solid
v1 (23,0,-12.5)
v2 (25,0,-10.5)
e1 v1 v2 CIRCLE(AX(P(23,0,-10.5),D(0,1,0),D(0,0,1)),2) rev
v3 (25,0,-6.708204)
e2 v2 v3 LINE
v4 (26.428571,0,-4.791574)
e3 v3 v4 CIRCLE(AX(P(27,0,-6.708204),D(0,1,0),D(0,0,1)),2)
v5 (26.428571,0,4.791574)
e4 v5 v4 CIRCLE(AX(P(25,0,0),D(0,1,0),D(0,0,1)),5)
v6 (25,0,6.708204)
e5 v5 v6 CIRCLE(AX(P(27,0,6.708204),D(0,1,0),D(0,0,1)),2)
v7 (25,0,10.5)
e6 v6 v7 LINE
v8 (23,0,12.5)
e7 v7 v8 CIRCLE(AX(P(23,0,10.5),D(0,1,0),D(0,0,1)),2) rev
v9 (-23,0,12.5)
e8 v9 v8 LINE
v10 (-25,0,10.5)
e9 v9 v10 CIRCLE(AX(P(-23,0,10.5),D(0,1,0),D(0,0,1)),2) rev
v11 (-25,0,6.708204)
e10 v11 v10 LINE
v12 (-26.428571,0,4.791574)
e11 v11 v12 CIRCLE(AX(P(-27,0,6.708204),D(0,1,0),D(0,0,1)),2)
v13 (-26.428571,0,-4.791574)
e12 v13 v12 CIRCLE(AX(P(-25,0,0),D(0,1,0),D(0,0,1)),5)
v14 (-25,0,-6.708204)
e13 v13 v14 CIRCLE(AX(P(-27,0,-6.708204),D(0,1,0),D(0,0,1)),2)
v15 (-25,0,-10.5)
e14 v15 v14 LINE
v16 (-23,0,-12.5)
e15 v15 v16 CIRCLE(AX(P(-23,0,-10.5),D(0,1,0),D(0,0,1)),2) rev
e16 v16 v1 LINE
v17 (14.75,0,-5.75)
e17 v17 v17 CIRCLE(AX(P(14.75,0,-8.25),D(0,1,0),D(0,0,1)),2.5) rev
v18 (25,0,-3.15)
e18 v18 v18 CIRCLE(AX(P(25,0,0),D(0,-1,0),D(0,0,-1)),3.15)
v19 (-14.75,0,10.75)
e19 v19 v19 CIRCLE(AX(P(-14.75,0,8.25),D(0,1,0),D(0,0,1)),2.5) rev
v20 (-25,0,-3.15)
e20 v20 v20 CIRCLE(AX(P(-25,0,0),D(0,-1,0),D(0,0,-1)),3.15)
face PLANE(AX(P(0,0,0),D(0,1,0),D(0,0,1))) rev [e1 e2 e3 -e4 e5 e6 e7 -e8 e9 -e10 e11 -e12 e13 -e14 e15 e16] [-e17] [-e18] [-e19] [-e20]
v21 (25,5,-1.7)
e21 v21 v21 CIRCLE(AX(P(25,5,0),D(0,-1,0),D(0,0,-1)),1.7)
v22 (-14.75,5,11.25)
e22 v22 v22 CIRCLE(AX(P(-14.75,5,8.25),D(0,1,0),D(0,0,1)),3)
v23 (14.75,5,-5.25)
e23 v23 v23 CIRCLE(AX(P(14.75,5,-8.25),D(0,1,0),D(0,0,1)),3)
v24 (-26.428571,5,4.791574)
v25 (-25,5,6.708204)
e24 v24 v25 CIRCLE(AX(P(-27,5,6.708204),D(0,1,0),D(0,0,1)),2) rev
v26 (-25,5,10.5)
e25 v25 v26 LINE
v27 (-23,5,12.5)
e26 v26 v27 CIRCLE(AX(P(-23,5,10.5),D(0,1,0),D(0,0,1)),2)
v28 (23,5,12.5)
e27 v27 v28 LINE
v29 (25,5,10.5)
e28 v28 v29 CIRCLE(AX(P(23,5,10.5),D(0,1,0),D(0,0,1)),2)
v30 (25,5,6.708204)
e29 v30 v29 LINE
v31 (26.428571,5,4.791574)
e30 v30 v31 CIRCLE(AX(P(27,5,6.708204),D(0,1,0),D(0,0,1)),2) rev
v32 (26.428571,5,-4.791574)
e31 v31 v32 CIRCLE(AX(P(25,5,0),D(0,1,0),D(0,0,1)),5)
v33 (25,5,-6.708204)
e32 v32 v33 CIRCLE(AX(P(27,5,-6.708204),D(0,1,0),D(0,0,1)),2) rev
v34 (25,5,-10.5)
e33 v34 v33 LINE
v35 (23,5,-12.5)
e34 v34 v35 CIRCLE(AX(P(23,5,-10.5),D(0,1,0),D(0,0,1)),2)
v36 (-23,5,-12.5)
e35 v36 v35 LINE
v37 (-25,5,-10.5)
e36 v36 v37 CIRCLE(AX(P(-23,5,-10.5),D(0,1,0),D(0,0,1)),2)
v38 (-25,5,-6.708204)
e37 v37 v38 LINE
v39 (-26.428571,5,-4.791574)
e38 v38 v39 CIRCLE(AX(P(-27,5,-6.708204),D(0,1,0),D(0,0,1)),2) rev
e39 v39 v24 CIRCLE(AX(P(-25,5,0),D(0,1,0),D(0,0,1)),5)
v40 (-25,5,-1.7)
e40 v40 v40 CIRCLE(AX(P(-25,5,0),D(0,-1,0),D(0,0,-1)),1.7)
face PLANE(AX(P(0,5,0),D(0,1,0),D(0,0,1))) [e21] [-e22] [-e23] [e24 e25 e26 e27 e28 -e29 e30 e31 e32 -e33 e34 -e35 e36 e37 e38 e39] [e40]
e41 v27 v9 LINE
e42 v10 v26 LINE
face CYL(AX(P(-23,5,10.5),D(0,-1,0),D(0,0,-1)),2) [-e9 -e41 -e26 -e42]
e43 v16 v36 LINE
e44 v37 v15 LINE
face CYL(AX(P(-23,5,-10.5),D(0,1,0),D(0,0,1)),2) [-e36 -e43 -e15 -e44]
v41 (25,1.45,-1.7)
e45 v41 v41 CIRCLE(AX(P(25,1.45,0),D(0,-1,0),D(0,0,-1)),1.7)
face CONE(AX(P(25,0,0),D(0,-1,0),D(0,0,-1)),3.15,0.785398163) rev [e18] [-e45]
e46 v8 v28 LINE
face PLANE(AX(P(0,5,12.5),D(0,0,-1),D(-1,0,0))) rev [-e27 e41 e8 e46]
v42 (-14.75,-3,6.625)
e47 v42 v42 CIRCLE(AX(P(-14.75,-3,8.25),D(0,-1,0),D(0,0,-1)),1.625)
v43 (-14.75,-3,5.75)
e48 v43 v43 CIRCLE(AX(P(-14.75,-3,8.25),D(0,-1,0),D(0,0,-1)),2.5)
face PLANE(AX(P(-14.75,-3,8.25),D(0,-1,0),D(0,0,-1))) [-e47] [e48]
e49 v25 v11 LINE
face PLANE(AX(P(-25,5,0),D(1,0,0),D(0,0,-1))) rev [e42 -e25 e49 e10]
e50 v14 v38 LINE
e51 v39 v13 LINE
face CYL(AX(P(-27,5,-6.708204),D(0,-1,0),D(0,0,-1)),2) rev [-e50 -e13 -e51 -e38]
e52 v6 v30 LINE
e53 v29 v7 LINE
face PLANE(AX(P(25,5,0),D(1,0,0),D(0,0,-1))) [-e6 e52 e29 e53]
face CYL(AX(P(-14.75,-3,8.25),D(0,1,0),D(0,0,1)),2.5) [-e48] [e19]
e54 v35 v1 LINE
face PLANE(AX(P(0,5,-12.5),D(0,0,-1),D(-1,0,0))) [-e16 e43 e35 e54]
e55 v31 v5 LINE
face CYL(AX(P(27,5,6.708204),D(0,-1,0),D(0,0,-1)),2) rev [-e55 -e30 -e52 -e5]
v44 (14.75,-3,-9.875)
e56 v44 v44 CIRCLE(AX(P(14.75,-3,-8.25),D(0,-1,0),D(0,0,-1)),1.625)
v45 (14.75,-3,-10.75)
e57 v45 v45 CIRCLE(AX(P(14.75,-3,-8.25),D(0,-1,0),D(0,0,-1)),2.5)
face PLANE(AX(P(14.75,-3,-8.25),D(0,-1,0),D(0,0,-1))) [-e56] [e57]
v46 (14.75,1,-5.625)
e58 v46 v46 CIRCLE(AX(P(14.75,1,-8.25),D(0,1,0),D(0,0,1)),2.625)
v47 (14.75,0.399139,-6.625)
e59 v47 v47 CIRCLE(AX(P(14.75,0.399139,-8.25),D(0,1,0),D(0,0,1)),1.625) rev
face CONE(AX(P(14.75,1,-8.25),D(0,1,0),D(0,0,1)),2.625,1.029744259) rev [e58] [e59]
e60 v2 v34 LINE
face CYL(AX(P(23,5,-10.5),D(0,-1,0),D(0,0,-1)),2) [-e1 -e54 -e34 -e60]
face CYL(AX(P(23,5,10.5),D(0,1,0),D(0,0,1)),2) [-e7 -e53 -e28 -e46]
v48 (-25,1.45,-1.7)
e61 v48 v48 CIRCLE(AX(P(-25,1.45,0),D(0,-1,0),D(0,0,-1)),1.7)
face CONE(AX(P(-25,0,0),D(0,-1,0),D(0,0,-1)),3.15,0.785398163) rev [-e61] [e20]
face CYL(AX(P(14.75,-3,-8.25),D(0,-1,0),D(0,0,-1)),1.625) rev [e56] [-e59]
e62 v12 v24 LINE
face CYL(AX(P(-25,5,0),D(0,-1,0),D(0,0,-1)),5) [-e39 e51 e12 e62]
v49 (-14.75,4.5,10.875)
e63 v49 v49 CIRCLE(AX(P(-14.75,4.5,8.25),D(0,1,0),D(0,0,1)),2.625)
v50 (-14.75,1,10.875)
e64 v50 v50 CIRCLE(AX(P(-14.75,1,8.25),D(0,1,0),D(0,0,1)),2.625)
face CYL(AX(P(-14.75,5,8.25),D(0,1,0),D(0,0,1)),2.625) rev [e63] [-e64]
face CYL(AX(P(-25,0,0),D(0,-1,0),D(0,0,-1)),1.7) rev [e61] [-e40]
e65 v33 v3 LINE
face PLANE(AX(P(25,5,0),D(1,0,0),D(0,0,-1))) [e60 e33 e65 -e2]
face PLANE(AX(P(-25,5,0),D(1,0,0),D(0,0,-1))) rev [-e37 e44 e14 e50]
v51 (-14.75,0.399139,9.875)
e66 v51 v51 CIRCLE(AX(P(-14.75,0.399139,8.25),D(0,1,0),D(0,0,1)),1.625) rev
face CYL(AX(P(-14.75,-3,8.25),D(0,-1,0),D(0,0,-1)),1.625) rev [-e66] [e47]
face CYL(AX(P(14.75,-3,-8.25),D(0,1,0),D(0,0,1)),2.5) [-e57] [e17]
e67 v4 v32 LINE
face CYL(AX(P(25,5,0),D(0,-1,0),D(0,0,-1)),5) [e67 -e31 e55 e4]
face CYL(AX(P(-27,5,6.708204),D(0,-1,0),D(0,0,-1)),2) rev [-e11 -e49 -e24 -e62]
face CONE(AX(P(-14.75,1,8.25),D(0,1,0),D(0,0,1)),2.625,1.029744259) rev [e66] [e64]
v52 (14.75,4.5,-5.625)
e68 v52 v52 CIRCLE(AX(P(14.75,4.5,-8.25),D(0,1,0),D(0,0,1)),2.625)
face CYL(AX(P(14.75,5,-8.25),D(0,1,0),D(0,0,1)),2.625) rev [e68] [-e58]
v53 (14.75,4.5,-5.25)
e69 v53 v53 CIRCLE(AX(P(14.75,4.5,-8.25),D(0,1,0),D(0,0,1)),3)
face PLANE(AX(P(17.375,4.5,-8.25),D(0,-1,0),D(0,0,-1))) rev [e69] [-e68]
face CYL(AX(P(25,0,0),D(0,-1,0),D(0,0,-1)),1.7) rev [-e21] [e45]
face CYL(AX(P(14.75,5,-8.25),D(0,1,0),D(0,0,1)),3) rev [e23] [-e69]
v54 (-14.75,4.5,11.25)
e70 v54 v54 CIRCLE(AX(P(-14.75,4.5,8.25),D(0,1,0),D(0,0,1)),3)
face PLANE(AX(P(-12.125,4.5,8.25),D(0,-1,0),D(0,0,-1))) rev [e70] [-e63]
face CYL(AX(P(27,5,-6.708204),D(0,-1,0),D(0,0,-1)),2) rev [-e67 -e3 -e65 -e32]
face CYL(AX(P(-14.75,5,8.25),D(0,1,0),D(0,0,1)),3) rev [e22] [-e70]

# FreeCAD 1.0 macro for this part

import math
import FreeCAD as App
import Part
import Sketcher

V = App.Vector


def edges_at(feature, points):
    """Names of the edges that pass closest to the given points."""
    edges = feature.Shape.Edges
    near = lambda p: min(range(len(edges)), key=lambda i: edges[i].distToShape(Part.Vertex(*p))[0])
    return sorted({f"Edge{near(p) + 1}" for p in points})

doc = App.newDocument("Part")
body = doc.addObject("PartDesign::Body", "Body")

# Sketch on XZ plane
sketch1 = body.newObject("Sketcher::SketchObject", "Sketch")
sketch1.AttachmentSupport = (doc.getObject("XZ_Plane"), [""])
sketch1.MapMode = "FlatFace"
sketch1.addGeometry(Part.LineSegment(V(-25, 5, 0), V(-25, 12.5, 0)), False)
sketch1.addGeometry(Part.LineSegment(V(-25, 12.5, 0), V(25, 12.5, 0)), False)
sketch1.addGeometry(Part.LineSegment(V(25, 12.5, 0), V(25, 5, 0)), False)
sketch1.addGeometry(Part.ArcOfCircle(Part.Circle(V(25, 0, 0), V(0, 0, 1), 5), math.radians(-90), math.radians(90)), False)
sketch1.addGeometry(Part.LineSegment(V(25, -5, 0), V(25, -12.5, 0)), False)
sketch1.addGeometry(Part.LineSegment(V(25, -12.5, 0), V(-25, -12.5, 0)), False)
sketch1.addGeometry(Part.LineSegment(V(-25, -12.5, 0), V(-25, -5, 0)), False)
sketch1.addGeometry(Part.ArcOfCircle(Part.Circle(V(-25, 0, 0), V(0, 0, 1), 5), math.radians(90), math.radians(270)), False)
sketch1.addConstraint(Sketcher.Constraint("Coincident", 0, 2, 1, 1))
sketch1.addConstraint(Sketcher.Constraint("Coincident", 1, 2, 2, 1))
sketch1.addConstraint(Sketcher.Constraint("Coincident", 2, 2, 3, 2))
sketch1.addConstraint(Sketcher.Constraint("Coincident", 3, 1, 4, 1))
sketch1.addConstraint(Sketcher.Constraint("Coincident", 4, 2, 5, 1))
sketch1.addConstraint(Sketcher.Constraint("Coincident", 5, 2, 6, 1))
sketch1.addConstraint(Sketcher.Constraint("Coincident", 6, 2, 7, 2))
sketch1.addConstraint(Sketcher.Constraint("Coincident", 7, 1, 0, 1))
sketch1.addConstraint(Sketcher.Constraint("Vertical", 0))
sketch1.addConstraint(Sketcher.Constraint("Horizontal", 1))
sketch1.addConstraint(Sketcher.Constraint("Vertical", 2))
sketch1.addConstraint(Sketcher.Constraint("Vertical", 4))
sketch1.addConstraint(Sketcher.Constraint("Horizontal", 5))
sketch1.addConstraint(Sketcher.Constraint("Vertical", 6))
sketch1.addConstraint(Sketcher.Constraint("Equal", 3, 7))
sketch1.addConstraint(Sketcher.Constraint("Symmetric", 3, 3, 7, 3, -1, 1))
sketch1.addConstraint(Sketcher.Constraint("Symmetric", 0, 2, 4, 2, -1, 1))
sketch1.addConstraint(Sketcher.Constraint("Symmetric", 3, 1, 6, 2, -2))
sketch1.addConstraint(Sketcher.Constraint("Vertical", 7, 3, 0, 2))
sketch1.addConstraint(Sketcher.Constraint("Vertical", 3, 3, 1, 2))
sketch1.addConstraint(Sketcher.Constraint("Radius", 3, 5.0))
sketch1.addConstraint(Sketcher.Constraint("DistanceX", 1, 1, 1, 2, 50.0))
sketch1.addConstraint(Sketcher.Constraint("DistanceY", 0, 1, 0, 2, 7.5))
pad1 = body.newObject("PartDesign::Pad", "Pad")
pad1.Profile = sketch1
pad1.Length = 5
pad1.Reversed = True
doc.recompute()

fillet = body.newObject("PartDesign::Fillet", "Fillet")
fillet.Base = (pad1, edges_at(pad1, [
    (25, 2.5, 12.5),
    (-25, 2.5, 12.5),
    (-25, 2.5, 5),
    (-25, 2.5, -5),
    (-25, 2.5, -12.5),
    (25, 2.5, -12.5),
    (25, 2.5, -5),
    (25, 2.5, 5),
]))
fillet.Radius = 2

# Sketch on XZ plane
sketch2 = body.newObject("Sketcher::SketchObject", "Sketch001")
sketch2.AttachmentSupport = (doc.getObject("XZ_Plane"), [""])
sketch2.MapMode = "FlatFace"
sketch2.addGeometry(Part.Circle(V(-14.75, 8.25, 0), V(0, 0, 1), 2.5), False)
sketch2.addGeometry(Part.Circle(V(14.75, -8.25, 0), V(0, 0, 1), 2.5), False)
sketch2.addConstraint(Sketcher.Constraint("Equal", 0, 1))
sketch2.addConstraint(Sketcher.Constraint("Symmetric", 0, 3, 1, 3, -1, 1))
sketch2.addConstraint(Sketcher.Constraint("Diameter", 0, 5.0))
sketch2.addConstraint(Sketcher.Constraint("DistanceX", 0, 3, 1, 3, 29.5))
sketch2.addConstraint(Sketcher.Constraint("DistanceY", 1, 3, 0, 3, 16.5))
pad2 = body.newObject("PartDesign::Pad", "Pad001")
pad2.Profile = sketch2
pad2.Length = 3

# Sketch on XZ plane
sketch3 = body.newObject("Sketcher::SketchObject", "Sketch002")
sketch3.AttachmentSupport = (doc.getObject("XZ_Plane"), [""])
sketch3.MapMode = "FlatFace"
sketch3.AttachmentOffset = App.Placement(V(0, 0, -5), App.Rotation())
sketch3.addGeometry(Part.Circle(V(-14.75, 8.25, 0), V(0, 0, 1), 2.625), False)
sketch3.addGeometry(Part.Circle(V(14.75, -8.25, 0), V(0, 0, 1), 2.625), False)
sketch3.addConstraint(Sketcher.Constraint("Equal", 0, 1))
sketch3.addConstraint(Sketcher.Constraint("Symmetric", 0, 3, 1, 3, -1, 1))
sketch3.addConstraint(Sketcher.Constraint("Diameter", 0, 5.25))
sketch3.addConstraint(Sketcher.Constraint("DistanceX", 0, 3, 1, 3, 29.5))
sketch3.addConstraint(Sketcher.Constraint("DistanceY", 1, 3, 0, 3, 16.5))
doc.recompute()
hole = body.newObject("PartDesign::Hole", "Hole")
hole.Profile = sketch3
hole.ThreadType = "None"
hole.Diameter = 5.25
hole.DepthType = "Dimension"
hole.Depth = 4
hole.DrillPoint = "Angled"
hole.DrillPointAngle = 118
hole.HoleCutType = "Counterbore"
hole.HoleCutDiameter = 6
hole.HoleCutDepth = 0.5
hole.Reversed = True

# Sketch on XZ plane
sketch4 = body.newObject("Sketcher::SketchObject", "Sketch003")
sketch4.AttachmentSupport = (doc.getObject("XZ_Plane"), [""])
sketch4.MapMode = "FlatFace"
sketch4.addGeometry(Part.Circle(V(-25, 0, 0), V(0, 0, 1), 1.7), False)
sketch4.addGeometry(Part.Circle(V(25, 0, 0), V(0, 0, 1), 1.7), False)
sketch4.addConstraint(Sketcher.Constraint("Equal", 0, 1))
sketch4.addConstraint(Sketcher.Constraint("Symmetric", 0, 3, 1, 3, -1, 1))
sketch4.addConstraint(Sketcher.Constraint("PointOnObject", 0, 3, -1))
sketch4.addConstraint(Sketcher.Constraint("Diameter", 0, 3.4))
sketch4.addConstraint(Sketcher.Constraint("DistanceX", 0, 3, -1, 1, 25.0))
doc.recompute()
hole2 = body.newObject("PartDesign::Hole", "Hole001")
hole2.Profile = sketch4
hole2.ThreadType = "None"
hole2.Diameter = 3.4
hole2.DepthType = "ThroughAll"
hole2.HoleCutType = "Countersink"
hole2.HoleCutDiameter = 6.3
hole2.HoleCutCountersinkAngle = 90

# Sketch on XZ plane
sketch5 = body.newObject("Sketcher::SketchObject", "Sketch004")
sketch5.AttachmentSupport = (doc.getObject("XZ_Plane"), [""])
sketch5.MapMode = "FlatFace"
sketch5.AttachmentOffset = App.Placement(V(0, 0, 3), App.Rotation())
sketch5.addGeometry(Part.Circle(V(-14.75, 8.25, 0), V(0, 0, 1), 1.625), False)
sketch5.addGeometry(Part.Circle(V(14.75, -8.25, 0), V(0, 0, 1), 1.625), False)
sketch5.addConstraint(Sketcher.Constraint("Equal", 0, 1))
sketch5.addConstraint(Sketcher.Constraint("Symmetric", 0, 3, 1, 3, -1, 1))
sketch5.addConstraint(Sketcher.Constraint("Diameter", 0, 3.25))
sketch5.addConstraint(Sketcher.Constraint("DistanceX", 0, 3, 1, 3, 29.5))
sketch5.addConstraint(Sketcher.Constraint("DistanceY", 1, 3, 0, 3, 16.5))
doc.recompute()
hole3 = body.newObject("PartDesign::Hole", "Hole002")
hole3.Profile = sketch5
hole3.ThreadType = "None"
hole3.Diameter = 3.25
hole3.DepthType = "Dimension"
hole3.Depth = 4
hole3.DrillPoint = "Angled"
hole3.DrillPointAngle = 118

doc.recompute()
